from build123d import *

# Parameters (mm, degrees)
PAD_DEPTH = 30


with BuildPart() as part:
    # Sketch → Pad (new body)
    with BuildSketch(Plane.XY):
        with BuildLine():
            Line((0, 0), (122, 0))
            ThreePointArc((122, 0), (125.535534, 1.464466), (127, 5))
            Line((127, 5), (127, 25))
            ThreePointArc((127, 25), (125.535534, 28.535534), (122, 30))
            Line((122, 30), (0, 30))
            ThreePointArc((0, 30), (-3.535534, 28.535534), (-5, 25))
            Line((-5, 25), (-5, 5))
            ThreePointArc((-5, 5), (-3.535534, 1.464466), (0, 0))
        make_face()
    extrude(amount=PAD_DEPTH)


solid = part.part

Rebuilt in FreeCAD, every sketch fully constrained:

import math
import FreeCAD as App
import Part
import Sketcher
from FreeCAD import Vector

doc = App.newDocument("Part")
body = doc.addObject("PartDesign::Body", "Body")

# Sketch on XY plane
sketch1 = body.newObject("Sketcher::SketchObject", "Sketch")
sketch1.AttachmentSupport = (doc.getObject("XY_Plane"), [""])
sketch1.MapMode = "FlatFace"
sketch1.addGeometry([
    Part.LineSegment(Vector(0, 0, 0), Vector(122, 0, 0)),  # 0
    Part.ArcOfCircle(Part.Circle(Vector(122, 5, 0), Vector(0, 0, 1), 5), math.radians(-90), math.radians(0)),  # 1
    Part.LineSegment(Vector(127, 5, 0), Vector(127, 25, 0)),  # 2
    Part.ArcOfCircle(Part.Circle(Vector(122, 25, 0), Vector(0, 0, 1), 5), math.radians(0), math.radians(90)),  # 3
    Part.LineSegment(Vector(122, 30, 0), Vector(0, 30, 0)),  # 4
    Part.ArcOfCircle(Part.Circle(Vector(0, 25, 0), Vector(0, 0, 1), 5), math.radians(90), math.radians(180)),  # 5
    Part.LineSegment(Vector(-5, 25, 0), Vector(-5, 5, 0)),  # 6
    Part.ArcOfCircle(Part.Circle(Vector(0, 5, 0), Vector(0, 0, 1), 5), math.radians(180), math.radians(270)),  # 7
], False)
sketch1.addConstraint([
    Sketcher.Constraint("Tangent", 0, 2, 1, 1),
    Sketcher.Constraint("Tangent", 1, 2, 2, 1),
    Sketcher.Constraint("Tangent", 2, 2, 3, 1),
    Sketcher.Constraint("Tangent", 3, 2, 4, 1),
    Sketcher.Constraint("Tangent", 4, 2, 5, 1),
    Sketcher.Constraint("Tangent", 5, 2, 6, 1),
    Sketcher.Constraint("Tangent", 6, 2, 7, 1),
    Sketcher.Constraint("Tangent", 7, 2, 0, 1),
    Sketcher.Constraint("Horizontal", 0),
    Sketcher.Constraint("Vertical", 2),
    Sketcher.Constraint("Horizontal", 4),
    Sketcher.Constraint("Vertical", 6),
    Sketcher.Constraint("Coincident", 7, 2, -1, 1),
    Sketcher.Constraint("Equal", 1, 3),
    Sketcher.Constraint("Equal", 3, 5),
    Sketcher.Constraint("Equal", 5, 7),
    Sketcher.Constraint("Radius", 1, 5.0),
    Sketcher.Constraint("DistanceX", 0, 1, 0, 2, 122.0),
    Sketcher.Constraint("DistanceY", 2, 1, 2, 2, 20.0),
])
pad1 = body.newObject("PartDesign::Pad", "Pad")
pad1.Profile = sketch1
pad1.Length = 30

doc.recompute()
